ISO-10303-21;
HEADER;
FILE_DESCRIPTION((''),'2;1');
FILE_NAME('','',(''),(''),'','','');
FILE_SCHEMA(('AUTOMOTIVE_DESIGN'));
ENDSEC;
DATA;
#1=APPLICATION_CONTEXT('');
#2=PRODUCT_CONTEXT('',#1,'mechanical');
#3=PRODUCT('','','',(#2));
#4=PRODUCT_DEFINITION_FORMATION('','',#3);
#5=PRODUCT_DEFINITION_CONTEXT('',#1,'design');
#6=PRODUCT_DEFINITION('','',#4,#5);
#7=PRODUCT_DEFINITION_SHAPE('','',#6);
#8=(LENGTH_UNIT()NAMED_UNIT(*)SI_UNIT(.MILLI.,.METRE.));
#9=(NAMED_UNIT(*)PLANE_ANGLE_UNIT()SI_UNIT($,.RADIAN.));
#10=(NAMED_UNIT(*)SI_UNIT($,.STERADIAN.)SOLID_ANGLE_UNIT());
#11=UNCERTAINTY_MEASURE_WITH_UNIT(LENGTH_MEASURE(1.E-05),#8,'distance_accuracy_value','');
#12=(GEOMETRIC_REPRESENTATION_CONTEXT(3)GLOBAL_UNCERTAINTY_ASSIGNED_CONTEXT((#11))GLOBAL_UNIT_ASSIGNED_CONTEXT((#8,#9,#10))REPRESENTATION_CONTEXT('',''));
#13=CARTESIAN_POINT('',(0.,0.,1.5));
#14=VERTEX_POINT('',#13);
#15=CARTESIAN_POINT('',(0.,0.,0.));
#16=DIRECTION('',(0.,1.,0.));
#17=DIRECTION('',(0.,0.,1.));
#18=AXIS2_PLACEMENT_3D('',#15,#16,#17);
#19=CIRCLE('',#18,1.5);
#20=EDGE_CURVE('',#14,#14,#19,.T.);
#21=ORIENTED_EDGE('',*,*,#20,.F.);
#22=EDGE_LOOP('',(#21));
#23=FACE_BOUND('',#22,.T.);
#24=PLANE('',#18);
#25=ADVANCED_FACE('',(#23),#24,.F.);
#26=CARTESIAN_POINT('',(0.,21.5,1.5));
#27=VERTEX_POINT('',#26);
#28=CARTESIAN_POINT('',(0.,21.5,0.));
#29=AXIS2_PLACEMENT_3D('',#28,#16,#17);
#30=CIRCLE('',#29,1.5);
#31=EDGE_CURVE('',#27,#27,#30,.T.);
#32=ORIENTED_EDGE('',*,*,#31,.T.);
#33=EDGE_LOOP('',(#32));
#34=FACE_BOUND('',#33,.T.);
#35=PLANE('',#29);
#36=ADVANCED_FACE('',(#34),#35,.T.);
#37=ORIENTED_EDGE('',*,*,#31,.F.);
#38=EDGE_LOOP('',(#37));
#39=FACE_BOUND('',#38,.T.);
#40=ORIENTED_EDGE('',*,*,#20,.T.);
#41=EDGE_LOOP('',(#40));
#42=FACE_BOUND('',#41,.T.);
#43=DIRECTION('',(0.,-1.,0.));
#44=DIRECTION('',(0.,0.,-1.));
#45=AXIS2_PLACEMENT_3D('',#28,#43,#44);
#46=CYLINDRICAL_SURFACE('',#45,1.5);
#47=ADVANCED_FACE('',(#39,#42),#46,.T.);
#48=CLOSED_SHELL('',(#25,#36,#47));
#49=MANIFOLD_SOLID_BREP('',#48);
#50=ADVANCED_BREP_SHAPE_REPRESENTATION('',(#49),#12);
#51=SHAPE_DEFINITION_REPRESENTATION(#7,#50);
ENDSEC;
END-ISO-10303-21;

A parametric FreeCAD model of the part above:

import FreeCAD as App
import Part
import Sketcher

doc = App.newDocument("Part")
body = doc.addObject("PartDesign::Body", "Body")

# Sketch on XZ plane
sketch1 = doc.addObject("Sketcher::SketchObject", "Sketch")
body.addObject(sketch1)
sketch1.AttachmentSupport = (doc.XZ_Plane, [""])
sketch1.MapMode = "FlatFace"
sketch1.addGeometry(Part.Circle(App.Vector(0, 0, 0), App.Vector(0, 0, 1), 1.5), False)
sketch1.addConstraint([
    Sketcher.Constraint("Coincident", 0, 3, -1, 1),
    Sketcher.Constraint("Diameter", 0, 3.0),
])
pad1 = doc.addObject("PartDesign::Pad", "Pad")
body.addObject(pad1)
pad1.Profile = sketch1
pad1.Length = 21.5
pad1.Reversed = True

doc.recompute()
